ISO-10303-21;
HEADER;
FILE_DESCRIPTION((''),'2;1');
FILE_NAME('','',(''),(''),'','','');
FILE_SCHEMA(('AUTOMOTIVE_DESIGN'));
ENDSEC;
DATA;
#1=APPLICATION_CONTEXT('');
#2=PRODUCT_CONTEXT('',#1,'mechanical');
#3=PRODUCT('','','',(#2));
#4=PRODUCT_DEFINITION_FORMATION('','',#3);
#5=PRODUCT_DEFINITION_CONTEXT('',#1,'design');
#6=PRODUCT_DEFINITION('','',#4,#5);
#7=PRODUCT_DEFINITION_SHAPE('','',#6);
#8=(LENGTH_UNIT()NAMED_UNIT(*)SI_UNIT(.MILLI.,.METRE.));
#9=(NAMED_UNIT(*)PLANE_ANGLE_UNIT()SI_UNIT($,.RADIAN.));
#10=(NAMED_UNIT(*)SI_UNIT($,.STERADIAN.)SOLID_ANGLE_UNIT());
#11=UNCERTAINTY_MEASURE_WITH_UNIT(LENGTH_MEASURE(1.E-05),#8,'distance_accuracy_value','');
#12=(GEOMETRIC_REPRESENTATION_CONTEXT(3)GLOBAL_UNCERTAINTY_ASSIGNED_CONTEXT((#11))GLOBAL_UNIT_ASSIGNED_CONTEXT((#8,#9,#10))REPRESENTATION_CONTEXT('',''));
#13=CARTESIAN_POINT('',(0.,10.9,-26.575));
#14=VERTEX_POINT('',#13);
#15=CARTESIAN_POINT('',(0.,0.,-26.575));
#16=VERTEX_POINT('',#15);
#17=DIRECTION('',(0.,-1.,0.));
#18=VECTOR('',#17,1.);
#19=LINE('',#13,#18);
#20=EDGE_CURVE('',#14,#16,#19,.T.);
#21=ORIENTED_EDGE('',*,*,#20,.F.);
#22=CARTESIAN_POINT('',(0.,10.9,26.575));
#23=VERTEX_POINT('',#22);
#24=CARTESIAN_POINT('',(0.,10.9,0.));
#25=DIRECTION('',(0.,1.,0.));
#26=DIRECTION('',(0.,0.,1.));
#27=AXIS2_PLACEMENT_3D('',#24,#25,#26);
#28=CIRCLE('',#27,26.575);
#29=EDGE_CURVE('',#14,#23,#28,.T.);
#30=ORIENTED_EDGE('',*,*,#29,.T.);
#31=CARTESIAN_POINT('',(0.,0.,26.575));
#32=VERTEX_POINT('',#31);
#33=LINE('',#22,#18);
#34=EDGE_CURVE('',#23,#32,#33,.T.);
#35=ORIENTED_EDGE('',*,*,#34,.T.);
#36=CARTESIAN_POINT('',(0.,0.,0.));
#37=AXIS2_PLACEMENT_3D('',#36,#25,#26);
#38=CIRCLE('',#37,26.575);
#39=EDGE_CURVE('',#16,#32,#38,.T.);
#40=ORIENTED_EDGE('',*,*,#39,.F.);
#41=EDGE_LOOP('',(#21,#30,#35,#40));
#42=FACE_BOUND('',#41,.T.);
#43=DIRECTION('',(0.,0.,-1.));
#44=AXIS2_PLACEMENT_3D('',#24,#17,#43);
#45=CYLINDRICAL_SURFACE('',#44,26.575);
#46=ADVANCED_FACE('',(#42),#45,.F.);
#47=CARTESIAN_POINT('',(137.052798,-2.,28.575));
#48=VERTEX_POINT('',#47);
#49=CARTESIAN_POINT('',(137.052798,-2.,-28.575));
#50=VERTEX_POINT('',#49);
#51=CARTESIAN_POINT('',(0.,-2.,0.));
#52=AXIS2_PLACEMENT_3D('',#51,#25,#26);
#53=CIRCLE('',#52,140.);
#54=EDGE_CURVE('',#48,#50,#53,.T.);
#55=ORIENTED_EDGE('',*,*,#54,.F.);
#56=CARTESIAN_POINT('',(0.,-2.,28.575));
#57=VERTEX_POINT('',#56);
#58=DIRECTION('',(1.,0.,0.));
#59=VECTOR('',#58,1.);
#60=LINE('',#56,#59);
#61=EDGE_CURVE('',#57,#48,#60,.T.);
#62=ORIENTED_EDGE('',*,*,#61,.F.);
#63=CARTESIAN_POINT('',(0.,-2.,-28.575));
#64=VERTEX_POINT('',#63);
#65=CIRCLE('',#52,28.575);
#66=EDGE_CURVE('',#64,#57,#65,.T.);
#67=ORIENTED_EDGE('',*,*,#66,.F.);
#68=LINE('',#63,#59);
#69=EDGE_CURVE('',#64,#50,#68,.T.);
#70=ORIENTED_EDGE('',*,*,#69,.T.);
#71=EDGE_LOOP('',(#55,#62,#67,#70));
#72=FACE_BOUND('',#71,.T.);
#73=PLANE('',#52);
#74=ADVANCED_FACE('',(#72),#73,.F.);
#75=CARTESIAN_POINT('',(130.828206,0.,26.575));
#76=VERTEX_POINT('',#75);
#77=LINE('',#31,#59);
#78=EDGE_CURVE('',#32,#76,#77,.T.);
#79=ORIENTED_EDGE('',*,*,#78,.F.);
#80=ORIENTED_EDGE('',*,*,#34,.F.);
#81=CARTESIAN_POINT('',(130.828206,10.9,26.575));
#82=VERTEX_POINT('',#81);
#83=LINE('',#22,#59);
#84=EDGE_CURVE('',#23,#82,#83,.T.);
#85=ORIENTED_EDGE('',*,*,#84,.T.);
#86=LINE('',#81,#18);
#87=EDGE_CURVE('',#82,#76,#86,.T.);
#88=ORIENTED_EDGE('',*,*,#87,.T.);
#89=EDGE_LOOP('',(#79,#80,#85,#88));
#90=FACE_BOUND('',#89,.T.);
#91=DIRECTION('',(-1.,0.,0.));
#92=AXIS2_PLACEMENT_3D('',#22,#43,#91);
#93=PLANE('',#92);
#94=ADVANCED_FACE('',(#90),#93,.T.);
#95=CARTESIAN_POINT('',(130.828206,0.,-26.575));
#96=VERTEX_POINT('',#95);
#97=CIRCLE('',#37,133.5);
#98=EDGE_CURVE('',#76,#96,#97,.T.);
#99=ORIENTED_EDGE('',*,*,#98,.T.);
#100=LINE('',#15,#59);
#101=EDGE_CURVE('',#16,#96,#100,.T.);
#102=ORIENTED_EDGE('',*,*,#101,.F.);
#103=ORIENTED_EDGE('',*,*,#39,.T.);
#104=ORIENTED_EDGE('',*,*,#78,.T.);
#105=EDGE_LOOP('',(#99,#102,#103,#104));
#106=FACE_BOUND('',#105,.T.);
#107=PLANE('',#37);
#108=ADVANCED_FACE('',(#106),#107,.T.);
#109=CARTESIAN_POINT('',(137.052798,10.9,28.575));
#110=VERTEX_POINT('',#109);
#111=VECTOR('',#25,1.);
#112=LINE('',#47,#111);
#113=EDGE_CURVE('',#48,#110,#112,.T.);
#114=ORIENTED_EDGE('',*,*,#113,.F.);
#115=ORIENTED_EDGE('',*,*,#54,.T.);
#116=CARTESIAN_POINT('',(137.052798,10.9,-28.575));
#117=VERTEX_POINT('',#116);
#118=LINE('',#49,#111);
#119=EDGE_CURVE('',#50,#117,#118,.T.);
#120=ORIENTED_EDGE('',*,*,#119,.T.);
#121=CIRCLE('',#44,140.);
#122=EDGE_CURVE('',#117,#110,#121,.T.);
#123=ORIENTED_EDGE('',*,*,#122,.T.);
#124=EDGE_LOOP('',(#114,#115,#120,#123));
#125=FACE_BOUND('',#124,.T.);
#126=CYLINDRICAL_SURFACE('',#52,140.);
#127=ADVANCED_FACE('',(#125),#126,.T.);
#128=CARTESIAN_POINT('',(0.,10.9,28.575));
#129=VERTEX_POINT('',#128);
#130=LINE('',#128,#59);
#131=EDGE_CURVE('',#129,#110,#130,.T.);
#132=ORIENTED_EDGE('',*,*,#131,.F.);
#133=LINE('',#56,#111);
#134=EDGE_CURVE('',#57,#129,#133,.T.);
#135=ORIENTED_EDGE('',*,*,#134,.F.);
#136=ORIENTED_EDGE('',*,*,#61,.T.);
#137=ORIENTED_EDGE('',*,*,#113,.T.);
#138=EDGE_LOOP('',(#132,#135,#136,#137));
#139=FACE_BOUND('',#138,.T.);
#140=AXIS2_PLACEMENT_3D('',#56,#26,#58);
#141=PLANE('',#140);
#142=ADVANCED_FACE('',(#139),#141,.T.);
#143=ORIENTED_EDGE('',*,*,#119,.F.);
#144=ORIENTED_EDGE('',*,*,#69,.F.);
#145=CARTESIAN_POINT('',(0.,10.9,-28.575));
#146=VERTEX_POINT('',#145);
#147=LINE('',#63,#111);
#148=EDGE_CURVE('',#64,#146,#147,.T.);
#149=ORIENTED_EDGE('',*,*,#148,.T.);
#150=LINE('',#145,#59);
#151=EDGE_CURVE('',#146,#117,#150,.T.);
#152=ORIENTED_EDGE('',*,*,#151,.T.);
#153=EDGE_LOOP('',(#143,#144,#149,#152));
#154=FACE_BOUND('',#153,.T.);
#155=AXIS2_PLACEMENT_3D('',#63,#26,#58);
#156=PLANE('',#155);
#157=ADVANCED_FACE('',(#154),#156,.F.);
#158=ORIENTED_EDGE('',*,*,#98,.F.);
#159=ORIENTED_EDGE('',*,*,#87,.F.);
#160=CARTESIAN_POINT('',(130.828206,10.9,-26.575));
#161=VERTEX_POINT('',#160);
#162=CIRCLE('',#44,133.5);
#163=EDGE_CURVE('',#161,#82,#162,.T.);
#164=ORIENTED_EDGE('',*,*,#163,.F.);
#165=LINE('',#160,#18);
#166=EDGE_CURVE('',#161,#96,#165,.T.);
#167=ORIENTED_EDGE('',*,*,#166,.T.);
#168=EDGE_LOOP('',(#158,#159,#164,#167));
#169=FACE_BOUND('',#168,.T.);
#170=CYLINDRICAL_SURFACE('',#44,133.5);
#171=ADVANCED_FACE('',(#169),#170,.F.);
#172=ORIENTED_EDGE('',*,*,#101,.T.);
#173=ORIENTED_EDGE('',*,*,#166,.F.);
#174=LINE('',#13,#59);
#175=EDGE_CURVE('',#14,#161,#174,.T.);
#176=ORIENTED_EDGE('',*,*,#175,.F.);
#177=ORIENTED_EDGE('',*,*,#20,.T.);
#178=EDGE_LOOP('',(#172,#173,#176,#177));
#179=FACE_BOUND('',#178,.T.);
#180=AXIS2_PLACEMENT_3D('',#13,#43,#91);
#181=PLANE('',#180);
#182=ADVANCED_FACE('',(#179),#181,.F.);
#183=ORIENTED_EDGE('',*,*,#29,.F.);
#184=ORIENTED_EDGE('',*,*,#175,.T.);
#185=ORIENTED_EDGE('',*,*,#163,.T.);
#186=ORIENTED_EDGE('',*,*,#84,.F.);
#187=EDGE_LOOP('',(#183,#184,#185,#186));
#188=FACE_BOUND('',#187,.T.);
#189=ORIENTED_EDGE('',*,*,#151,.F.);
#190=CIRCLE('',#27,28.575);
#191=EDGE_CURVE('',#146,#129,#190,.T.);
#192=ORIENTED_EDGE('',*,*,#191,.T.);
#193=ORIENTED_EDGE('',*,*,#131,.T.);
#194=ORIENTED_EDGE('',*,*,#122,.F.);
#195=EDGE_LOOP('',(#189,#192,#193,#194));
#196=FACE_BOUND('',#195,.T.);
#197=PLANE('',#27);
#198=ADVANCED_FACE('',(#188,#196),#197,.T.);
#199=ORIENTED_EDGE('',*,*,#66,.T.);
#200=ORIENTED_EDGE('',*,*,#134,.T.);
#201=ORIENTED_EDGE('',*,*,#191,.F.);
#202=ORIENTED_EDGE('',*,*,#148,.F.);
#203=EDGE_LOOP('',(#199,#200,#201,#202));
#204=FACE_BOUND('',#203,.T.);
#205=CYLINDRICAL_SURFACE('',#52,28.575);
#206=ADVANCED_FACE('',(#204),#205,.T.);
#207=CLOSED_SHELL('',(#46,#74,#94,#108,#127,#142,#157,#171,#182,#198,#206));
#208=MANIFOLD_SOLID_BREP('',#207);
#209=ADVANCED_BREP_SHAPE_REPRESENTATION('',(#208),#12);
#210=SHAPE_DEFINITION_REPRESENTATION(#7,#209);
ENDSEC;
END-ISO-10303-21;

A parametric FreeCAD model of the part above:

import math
import FreeCAD as App
import Part
import Sketcher

V = App.Vector
Q = App.Units.Quantity

doc = App.newDocument("Part")
body = doc.addObject("PartDesign::Body", "Body")

sketch1 = body.newObject("Sketcher::SketchObject", "Sketch")
sketch1.AttachmentSupport = (doc.getObject("XZ_Plane"), [""])
sketch1.MapMode = "FlatFace"
sketch1.addGeometry([
    Part.LineSegment(V(137, -29, 0), V(0, -29, 0)),
    Part.ArcOfCircle(Part.Circle(V(0, 0, 0), V(0, 0, 1), 29), math.radians(90), math.radians(270)),
    Part.LineSegment(V(0, 29, 0), V(137, 29, 0)),
    Part.ArcOfCircle(Part.Circle(V(0, 0, 0), V(0, 0, 1), 140), math.radians(0), math.radians(11.78)),
    Part.ArcOfCircle(Part.Circle(V(0, 0, 0), V(0, 0, 1), 140), math.radians(-11.78), math.radians(0)),
], False)
sketch1.addConstraint([
    Sketcher.Constraint("Tangent", 0, 2, 1, 2),
    Sketcher.Constraint("Tangent", 1, 1, 2, 1),
    Sketcher.Constraint("Coincident", 2, 2, 3, 2),
    Sketcher.Constraint("Tangent", 3, 1, 4, 2),
    Sketcher.Constraint("Coincident", 4, 1, 0, 1),
    Sketcher.Constraint("Horizontal", 0),
    Sketcher.Constraint("Horizontal", 2),
    Sketcher.Constraint("Coincident", 1, 3, -1, 1),
    Sketcher.Constraint("Coincident", 3, 3, -1, 1),
    Sketcher.Constraint("Equal", 3, 4),
    Sketcher.Constraint("PointOnObject", 3, 1, -1),
    Sketcher.Constraint("Radius", 3, Q("140 mm")),
    Sketcher.Constraint("Radius", 1, Q("28.575 mm")),
])
pad1 = body.newObject("PartDesign::Pad", "Pad")
pad1.Profile = sketch1
pad1.Length = 2

sketch2 = body.newObject("Sketcher::SketchObject", "Sketch001")
sketch2.AttachmentSupport = (doc.getObject("XZ_Plane"), [""])
sketch2.MapMode = "FlatFace"
sketch2.addGeometry([
    Part.LineSegment(V(137, -29, 0), V(0, -29, 0)),
    Part.ArcOfCircle(Part.Circle(V(0, 0, 0), V(0, 0, 1), 29), math.radians(90), math.radians(270)),
    Part.LineSegment(V(0, 29, 0), V(137, 29, 0)),
    Part.ArcOfCircle(Part.Circle(V(0, 0, 0), V(0, 0, 1), 140), math.radians(0), math.radians(11.78)),
    Part.ArcOfCircle(Part.Circle(V(0, 0, 0), V(0, 0, 1), 140), math.radians(-11.78), math.radians(0)),
    Part.ArcOfCircle(Part.Circle(V(0, 0, 0), V(0, 0, 1), 27), math.radians(90), math.radians(270)),
    Part.LineSegment(V(0, -27, 0), V(131, -27, 0)),
    Part.ArcOfCircle(Part.Circle(V(0, 0, 0), V(0, 0, 1), 133), math.radians(-11.48), math.radians(0)),
    Part.ArcOfCircle(Part.Circle(V(0, 0, 0), V(0, 0, 1), 133), math.radians(0), math.radians(11.48)),
    Part.LineSegment(V(131, 27, 0), V(0, 27, 0)),
], False)
sketch2.addConstraint([
    Sketcher.Constraint("Tangent", 0, 2, 1, 2),
    Sketcher.Constraint("Tangent", 1, 1, 2, 1),
    Sketcher.Constraint("Coincident", 2, 2, 3, 2),
    Sketcher.Constraint("Tangent", 3, 1, 4, 2),
    Sketcher.Constraint("Coincident", 4, 1, 0, 1),
    Sketcher.Constraint("Tangent", 5, 2, 6, 1),
    Sketcher.Constraint("Coincident", 6, 2, 7, 1),
    Sketcher.Constraint("Tangent", 7, 2, 8, 1),
    Sketcher.Constraint("Coincident", 8, 2, 9, 1),
    Sketcher.Constraint("Tangent", 9, 2, 5, 1),
    Sketcher.Constraint("Horizontal", 0),
    Sketcher.Constraint("Horizontal", 2),
    Sketcher.Constraint("Horizontal", 6),
    Sketcher.Constraint("Horizontal", 9),
    Sketcher.Constraint("Coincident", 1, 3, -1, 1),
    Sketcher.Constraint("Coincident", 3, 3, -1, 1),
    Sketcher.Constraint("Coincident", 5, 3, -1, 1),
    Sketcher.Constraint("Coincident", 7, 3, -1, 1),
    Sketcher.Constraint("Equal", 3, 4),
    Sketcher.Constraint("Equal", 7, 8),
    Sketcher.Constraint("PointOnObject", 3, 1, -1),
    Sketcher.Constraint("PointOnObject", 7, 2, -1),
    Sketcher.Constraint("Radius", 3, Q("140 mm")),
    Sketcher.Constraint("Radius", 7, Q("133.5 mm")),
    Sketcher.Constraint("Radius", 1, Q("28.575 mm")),
    Sketcher.Constraint("Radius", 5, Q("26.575 mm")),
])
pad2 = body.newObject("PartDesign::Pad", "Pad001")
pad2.Profile = sketch2
pad2.Length = 10.9
pad2.Reversed = True

doc.recompute()
